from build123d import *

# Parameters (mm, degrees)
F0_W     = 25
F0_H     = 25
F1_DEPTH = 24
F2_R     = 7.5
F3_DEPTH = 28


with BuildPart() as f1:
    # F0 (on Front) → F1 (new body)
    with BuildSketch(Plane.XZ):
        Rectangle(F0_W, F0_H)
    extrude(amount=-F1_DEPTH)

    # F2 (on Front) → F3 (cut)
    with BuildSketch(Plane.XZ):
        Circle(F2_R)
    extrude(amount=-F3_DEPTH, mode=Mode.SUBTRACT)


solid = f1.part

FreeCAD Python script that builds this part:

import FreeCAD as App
import Part
import Sketcher


def add_polygon(sketch, points):
    """Adds a closed chain of lines whose ends are joined by coincident constraints."""
    first, n = sketch.GeometryCount, len(points)
    for a, b in zip(points, points[1:] + points[:1]):
        sketch.addGeometry(Part.LineSegment(App.Vector(*a, 0), App.Vector(*b, 0)), False)
    for i in range(n):
        sketch.addConstraint(Sketcher.Constraint("Coincident", first + i, 2, first + (i + 1) % n, 1))

doc = App.newDocument("Part")
params = doc.addObject("Spreadsheet::Sheet", "Params")
for row, (alias, value) in enumerate([
    ("sketch1_width", "25 mm"),
    ("pad1_length", "24 mm"),
    ("sketch2_diameter", "15 mm"),
    ("pocket1_length", "28 mm"),
], start=1):
    params.set(f"A{row}", alias)
    params.set(f"B{row}", "=" + value)
    params.setAlias(f"B{row}", alias)

body = doc.addObject("PartDesign::Body", "Body")

sketch1 = body.newObject("Sketcher::SketchObject", "Sketch")
sketch1.AttachmentSupport = (doc.getObject("XZ_Plane"), [""])
sketch1.MapMode = "FlatFace"
add_polygon(sketch1, [(-12.5, 12.5), (-12.5, -12.5), (12.5, -12.5), (12.5, 12.5)])
sketch1.addConstraint(Sketcher.Constraint("Vertical", 0))
sketch1.addConstraint(Sketcher.Constraint("Horizontal", 1))
sketch1.addConstraint(Sketcher.Constraint("Vertical", 2))
sketch1.addConstraint(Sketcher.Constraint("Horizontal", 3))
sketch1.addConstraint(Sketcher.Constraint("Symmetric", 0, 2, 2, 2, -1, 1))
sketch1.addConstraint(Sketcher.Constraint("Equal", 3, 0))
sketch1.addConstraint(Sketcher.Constraint("DistanceX", 1, 1, 1, 2, 25.0))
sketch1.setExpression("Constraints[10]", "Params.sketch1_width")
pad1 = body.newObject("PartDesign::Pad", "Pad")
pad1.Profile = sketch1
pad1.setExpression("Length", "Params.pad1_length")
pad1.Reversed = True

sketch2 = body.newObject("Sketcher::SketchObject", "Sketch001")
sketch2.AttachmentSupport = (doc.getObject("XZ_Plane"), [""])
sketch2.MapMode = "FlatFace"
sketch2.addGeometry(Part.Circle(App.Vector(0, 0, 0), App.Vector(0, 0, 1), 7.5), False)
sketch2.addConstraint(Sketcher.Constraint("Coincident", 0, 3, -1, 1))
sketch2.addConstraint(Sketcher.Constraint("Diameter", 0, 15.0))
sketch2.setExpression("Constraints[1]", "Params.sketch2_diameter")
pocket1 = body.newObject("PartDesign::Pocket", "Pocket")
pocket1.Profile = sketch2
pocket1.setExpression("Length", "Params.pocket1_length")

doc.recompute()
